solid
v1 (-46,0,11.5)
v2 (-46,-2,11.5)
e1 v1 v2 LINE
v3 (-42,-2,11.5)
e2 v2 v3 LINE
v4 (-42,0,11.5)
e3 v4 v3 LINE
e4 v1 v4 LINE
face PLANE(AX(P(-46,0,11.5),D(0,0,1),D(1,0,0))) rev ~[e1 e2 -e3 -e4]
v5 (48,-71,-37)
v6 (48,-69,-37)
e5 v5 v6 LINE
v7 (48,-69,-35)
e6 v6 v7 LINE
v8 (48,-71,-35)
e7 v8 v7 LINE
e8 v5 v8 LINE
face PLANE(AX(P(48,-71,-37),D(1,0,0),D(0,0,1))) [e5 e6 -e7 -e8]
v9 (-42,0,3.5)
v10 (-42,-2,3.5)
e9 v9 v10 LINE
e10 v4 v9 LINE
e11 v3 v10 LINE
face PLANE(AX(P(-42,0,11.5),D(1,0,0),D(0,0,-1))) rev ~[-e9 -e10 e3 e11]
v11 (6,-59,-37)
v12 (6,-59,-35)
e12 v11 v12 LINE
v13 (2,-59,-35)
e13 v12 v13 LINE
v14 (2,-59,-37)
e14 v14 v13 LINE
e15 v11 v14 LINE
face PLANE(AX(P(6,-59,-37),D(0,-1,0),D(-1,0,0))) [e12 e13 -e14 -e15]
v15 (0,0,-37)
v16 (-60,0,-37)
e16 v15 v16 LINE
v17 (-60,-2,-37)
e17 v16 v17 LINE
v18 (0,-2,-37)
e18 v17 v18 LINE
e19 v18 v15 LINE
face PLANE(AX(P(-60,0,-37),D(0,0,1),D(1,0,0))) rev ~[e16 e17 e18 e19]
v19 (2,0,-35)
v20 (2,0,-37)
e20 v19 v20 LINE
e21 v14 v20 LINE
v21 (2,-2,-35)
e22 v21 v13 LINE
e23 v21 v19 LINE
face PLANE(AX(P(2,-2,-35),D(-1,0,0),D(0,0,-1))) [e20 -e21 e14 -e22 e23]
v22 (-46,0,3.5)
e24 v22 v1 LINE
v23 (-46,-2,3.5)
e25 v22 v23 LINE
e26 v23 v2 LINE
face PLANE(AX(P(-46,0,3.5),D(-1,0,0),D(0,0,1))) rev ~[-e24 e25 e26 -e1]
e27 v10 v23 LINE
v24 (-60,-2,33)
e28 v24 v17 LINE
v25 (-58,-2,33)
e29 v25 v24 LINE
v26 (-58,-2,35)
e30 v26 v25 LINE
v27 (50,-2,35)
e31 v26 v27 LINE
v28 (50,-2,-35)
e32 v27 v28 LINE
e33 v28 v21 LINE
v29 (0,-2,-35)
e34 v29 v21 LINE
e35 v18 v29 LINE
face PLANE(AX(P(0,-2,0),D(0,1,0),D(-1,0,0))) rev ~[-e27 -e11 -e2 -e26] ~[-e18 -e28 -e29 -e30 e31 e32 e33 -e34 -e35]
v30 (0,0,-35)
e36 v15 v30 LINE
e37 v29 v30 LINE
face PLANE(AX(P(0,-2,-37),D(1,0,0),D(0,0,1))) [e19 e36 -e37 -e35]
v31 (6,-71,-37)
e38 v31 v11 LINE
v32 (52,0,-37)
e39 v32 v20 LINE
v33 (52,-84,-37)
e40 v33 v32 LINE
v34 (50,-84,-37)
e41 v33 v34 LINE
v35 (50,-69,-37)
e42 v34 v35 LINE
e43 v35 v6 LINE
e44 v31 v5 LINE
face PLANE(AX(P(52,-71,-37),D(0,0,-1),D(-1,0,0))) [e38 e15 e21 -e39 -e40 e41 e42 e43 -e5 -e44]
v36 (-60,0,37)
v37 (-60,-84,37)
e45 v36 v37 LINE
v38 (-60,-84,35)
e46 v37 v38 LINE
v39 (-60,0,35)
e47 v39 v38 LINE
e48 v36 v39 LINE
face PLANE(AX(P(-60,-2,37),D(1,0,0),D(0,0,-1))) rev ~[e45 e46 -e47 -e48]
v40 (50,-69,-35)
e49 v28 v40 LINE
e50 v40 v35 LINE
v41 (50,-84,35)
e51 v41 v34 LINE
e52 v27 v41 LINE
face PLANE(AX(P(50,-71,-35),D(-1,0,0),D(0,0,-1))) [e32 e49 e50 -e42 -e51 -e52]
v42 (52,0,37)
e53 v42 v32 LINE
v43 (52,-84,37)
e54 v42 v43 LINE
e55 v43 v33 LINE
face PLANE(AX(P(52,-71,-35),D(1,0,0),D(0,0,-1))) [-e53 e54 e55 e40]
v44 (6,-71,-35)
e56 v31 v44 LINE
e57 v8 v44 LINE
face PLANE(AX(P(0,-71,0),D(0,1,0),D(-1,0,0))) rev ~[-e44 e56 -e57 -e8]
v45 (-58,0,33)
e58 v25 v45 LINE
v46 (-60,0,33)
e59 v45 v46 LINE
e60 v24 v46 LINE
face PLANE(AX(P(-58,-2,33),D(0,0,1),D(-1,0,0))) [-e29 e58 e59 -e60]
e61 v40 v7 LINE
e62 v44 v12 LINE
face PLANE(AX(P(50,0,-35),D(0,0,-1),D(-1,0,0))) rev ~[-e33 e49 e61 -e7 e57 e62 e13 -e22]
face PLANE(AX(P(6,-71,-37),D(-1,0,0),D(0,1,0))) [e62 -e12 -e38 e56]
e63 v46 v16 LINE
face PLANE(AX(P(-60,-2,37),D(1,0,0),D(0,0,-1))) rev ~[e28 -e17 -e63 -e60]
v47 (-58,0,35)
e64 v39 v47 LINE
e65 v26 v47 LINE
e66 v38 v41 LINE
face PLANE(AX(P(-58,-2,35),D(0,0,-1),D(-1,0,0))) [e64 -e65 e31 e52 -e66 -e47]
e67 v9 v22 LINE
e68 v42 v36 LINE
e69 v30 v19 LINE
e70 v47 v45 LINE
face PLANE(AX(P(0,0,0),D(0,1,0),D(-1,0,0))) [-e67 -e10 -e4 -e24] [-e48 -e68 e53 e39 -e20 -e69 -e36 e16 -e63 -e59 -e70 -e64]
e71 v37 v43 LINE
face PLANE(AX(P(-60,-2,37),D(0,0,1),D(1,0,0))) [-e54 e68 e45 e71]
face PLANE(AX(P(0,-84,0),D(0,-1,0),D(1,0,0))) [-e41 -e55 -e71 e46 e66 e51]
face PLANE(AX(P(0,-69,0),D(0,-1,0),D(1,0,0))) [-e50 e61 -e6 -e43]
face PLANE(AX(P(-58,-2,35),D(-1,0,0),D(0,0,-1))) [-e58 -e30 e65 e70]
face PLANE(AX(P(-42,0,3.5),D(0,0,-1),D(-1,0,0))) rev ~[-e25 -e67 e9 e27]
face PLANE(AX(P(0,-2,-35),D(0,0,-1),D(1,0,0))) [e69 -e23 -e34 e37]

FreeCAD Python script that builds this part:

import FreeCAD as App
import Part
import Sketcher
Q = App.Units.Quantity


def add_polygon(sketch, points):
    """Adds a closed chain of lines whose ends are joined by coincident constraints."""
    first, n = sketch.GeometryCount, len(points)
    for a, b in zip(points, points[1:] + points[:1]):
        sketch.addGeometry(Part.LineSegment(App.Vector(*a, 0), App.Vector(*b, 0)), False)
    for i in range(n):
        sketch.addConstraint(Sketcher.Constraint("Coincident", first + i, 2, first + (i + 1) % n, 1))

doc = App.newDocument("Part")
body = doc.addObject("PartDesign::Body", "Body")

# Sketch on XZ plane
sketch1 = doc.addObject("Sketcher::SketchObject", "Sketch")
body.addObject(sketch1)
sketch1.AttachmentSupport = (doc.XZ_Plane, [""])
sketch1.MapMode = "FlatFace"
add_polygon(sketch1, [(-58, -35), (-58, 35), (50, 35), (50, -35)])  # lines 0-3
sketch1.addConstraint(Sketcher.Constraint("Vertical", 0))
sketch1.addConstraint(Sketcher.Constraint("Horizontal", 1))
sketch1.addConstraint(Sketcher.Constraint("Vertical", 2))
sketch1.addConstraint(Sketcher.Constraint("Horizontal", 3))
sketch1.addConstraint(Sketcher.Constraint("DistanceY", 0, 1, 0, 2, Q("70 mm")))
sketch1.addConstraint(Sketcher.Constraint("DistanceX", 0, 2, -1, 1, Q("58 mm")))
sketch1.addConstraint(Sketcher.Constraint("DistanceY", -1, 1, 0, 2, Q("35 mm")))
sketch1.addConstraint(Sketcher.Constraint("DistanceX", -1, 1, 1, 2, Q("50 mm")))
pad1 = doc.addObject("PartDesign::Pad", "Pad")
body.addObject(pad1)
pad1.Profile = sketch1
pad1.Length = 2

# Sketch on XZ plane
sketch2 = doc.addObject("Sketcher::SketchObject", "Sketch001")
body.addObject(sketch2)
sketch2.AttachmentSupport = (doc.XZ_Plane, [""])
sketch2.MapMode = "FlatFace"
add_polygon(sketch2, [(50, 37), (50, 35), (-58, 35), (-58, 37)])  # lines 0-3
sketch2.addConstraint(Sketcher.Constraint("Vertical", 0))
sketch2.addConstraint(Sketcher.Constraint("Horizontal", 1))
sketch2.addConstraint(Sketcher.Constraint("Vertical", 2))
sketch2.addConstraint(Sketcher.Constraint("Horizontal", 3))
sketch2.addConstraint(Sketcher.Constraint("DistanceY", 0, 2, 0, 1, Q("2 mm")))
sketch2.addConstraint(Sketcher.Constraint("DistanceX", 1, 2, 1, 1, Q("108 mm")))
sketch2.addConstraint(Sketcher.Constraint("DistanceX", -1, 1, 0, 2, Q("50 mm")))
sketch2.addConstraint(Sketcher.Constraint("DistanceY", -1, 1, 0, 2, Q("35 mm")))
pad2 = doc.addObject("PartDesign::Pad", "Pad001")
body.addObject(pad2)
pad2.Profile = sketch2
pad2.Length = 84

# Sketch on XZ plane
sketch3 = doc.addObject("Sketcher::SketchObject", "Sketch002")
body.addObject(sketch3)
sketch3.AttachmentSupport = (doc.XZ_Plane, [""])
sketch3.MapMode = "FlatFace"
add_polygon(sketch3, [(52, -35), (50, -35), (50, 37), (52, 37)])  # lines 0-3
sketch3.addConstraint(Sketcher.Constraint("Horizontal", 0))
sketch3.addConstraint(Sketcher.Constraint("Vertical", 1))
sketch3.addConstraint(Sketcher.Constraint("Horizontal", 2))
sketch3.addConstraint(Sketcher.Constraint("Vertical", 3))
sketch3.addConstraint(Sketcher.Constraint("DistanceX", 0, 2, 0, 1, Q("2 mm")))
sketch3.addConstraint(Sketcher.Constraint("DistanceY", 1, 1, 1, 2, Q("72 mm")))
sketch3.addConstraint(Sketcher.Constraint("DistanceX", -1, 1, 0, 2, Q("50 mm")))
sketch3.addConstraint(Sketcher.Constraint("DistanceY", 0, 2, -1, 1, Q("35 mm")))
pad3 = doc.addObject("PartDesign::Pad", "Pad002")
body.addObject(pad3)
pad3.Profile = sketch3
pad3.Length = 84

# Sketch on XZ plane
sketch4 = doc.addObject("Sketcher::SketchObject", "Sketch003")
body.addObject(sketch4)
sketch4.AttachmentSupport = (doc.XZ_Plane, [""])
sketch4.MapMode = "FlatFace"
add_polygon(sketch4, [(2, -35), (52, -35), (52, -37), (2, -37)])  # lines 0-3
sketch4.addConstraint(Sketcher.Constraint("Horizontal", 0))
sketch4.addConstraint(Sketcher.Constraint("Vertical", 1))
sketch4.addConstraint(Sketcher.Constraint("Horizontal", 2))
sketch4.addConstraint(Sketcher.Constraint("Vertical", 3))
sketch4.addConstraint(Sketcher.Constraint("DistanceX", 0, 1, 0, 2, Q("50 mm")))
sketch4.addConstraint(Sketcher.Constraint("DistanceY", 1, 2, 1, 1, Q("2 mm")))
sketch4.addConstraint(Sketcher.Constraint("DistanceX", -1, 1, 2, 2, Q("2 mm")))
sketch4.addConstraint(Sketcher.Constraint("DistanceY", 0, 2, -1, 1, Q("35 mm")))
pad4 = doc.addObject("PartDesign::Pad", "Pad003")
body.addObject(pad4)
pad4.Profile = sketch4
pad4.Length = 71

# Sketch on XY plane
sketch5 = doc.addObject("Sketcher::SketchObject", "Sketch004")
body.addObject(sketch5)
sketch5.AttachmentSupport = (doc.XY_Plane, [""])
sketch5.MapMode = "FlatFace"
sketch5.AttachmentOffset = App.Placement(App.Vector(0, 0, -37), App.Rotation())
add_polygon(sketch5, [(2, -71), (2, -59), (6, -59), (6, -71)])  # lines 0-3
sketch5.addConstraint(Sketcher.Constraint("Vertical", 0))
sketch5.addConstraint(Sketcher.Constraint("Horizontal", 1))
sketch5.addConstraint(Sketcher.Constraint("Vertical", 2))
sketch5.addConstraint(Sketcher.Constraint("Horizontal", 3))
sketch5.addConstraint(Sketcher.Constraint("DistanceX", 1, 1, 1, 2, Q("4 mm")))
sketch5.addConstraint(Sketcher.Constraint("DistanceY", 0, 1, 0, 2, Q("12 mm")))
sketch5.addConstraint(Sketcher.Constraint("DistanceX", -1, 1, 0, 2, Q("2 mm")))
sketch5.addConstraint(Sketcher.Constraint("DistanceY", 0, 2, -1, 1, Q("59 mm")))
pocket1 = doc.addObject("PartDesign::Pocket", "Pocket")
body.addObject(pocket1)
pocket1.Profile = sketch5
pocket1.Length = 3
pocket1.Reversed = True

# Sketch on XZ plane
sketch6 = doc.addObject("Sketcher::SketchObject", "Sketch005")
body.addObject(sketch6)
sketch6.AttachmentSupport = (doc.XZ_Plane, [""])
sketch6.MapMode = "FlatFace"
add_polygon(sketch6, [(-58, 37), (-58, -35), (2, -35), (2, -37), (-60, -37), (-60, 37)])  # lines 0-5
sketch6.addConstraint(Sketcher.Constraint("Vertical", 0))
sketch6.addConstraint(Sketcher.Constraint("Horizontal", 1))
sketch6.addConstraint(Sketcher.Constraint("Vertical", 2))
sketch6.addConstraint(Sketcher.Constraint("Horizontal", 3))
sketch6.addConstraint(Sketcher.Constraint("Vertical", 4))
sketch6.addConstraint(Sketcher.Constraint("Horizontal", 5))
sketch6.addConstraint(Sketcher.Constraint("Equal", 5, 2))
sketch6.addConstraint(Sketcher.Constraint("DistanceX", 5, 1, 5, 2, Q("2 mm")))
sketch6.addConstraint(Sketcher.Constraint("DistanceX", -1, 1, 1, 2, Q("2 mm")))
sketch6.addConstraint(Sketcher.Constraint("DistanceX", 1, 1, 1, 2, Q("60 mm")))
sketch6.addConstraint(Sketcher.Constraint("DistanceY", 0, 2, 0, 1, Q("72 mm")))
sketch6.addConstraint(Sketcher.Constraint("DistanceY", 0, 2, -1, 1, Q("35 mm")))
pad5 = doc.addObject("PartDesign::Pad", "Pad004")
body.addObject(pad5)
pad5.Profile = sketch6
pad5.Length = 2

# Sketch on XZ plane
sketch7 = doc.addObject("Sketcher::SketchObject", "Sketch006")
body.addObject(sketch7)
sketch7.AttachmentSupport = (doc.XZ_Plane, [""])
sketch7.MapMode = "FlatFace"
sketch7.AttachmentOffset = App.Placement(App.Vector(0, 0, 2), App.Rotation())
add_polygon(sketch7, [(-58, 37), (-60, 37), (-60, 35), (-58, 35)])  # lines 0-3
sketch7.addConstraint(Sketcher.Constraint("Horizontal", 0))
sketch7.addConstraint(Sketcher.Constraint("Vertical", 1))
sketch7.addConstraint(Sketcher.Constraint("Horizontal", 2))
sketch7.addConstraint(Sketcher.Constraint("Vertical", 3))
sketch7.addConstraint(Sketcher.Constraint("Equal", 2, 1))
sketch7.addConstraint(Sketcher.Constraint("DistanceX", 0, 2, 0, 1, Q("2 mm")))
sketch7.addConstraint(Sketcher.Constraint("DistanceX", 0, 2, -1, 1, Q("60 mm")))
sketch7.addConstraint(Sketcher.Constraint("DistanceY", -1, 1, 0, 2, Q("37 mm")))
pad6 = doc.addObject("PartDesign::Pad", "Pad005")
body.addObject(pad6)
pad6.Profile = sketch7
pad6.Length = 82

# Sketch on XZ plane
sketch8 = doc.addObject("Sketcher::SketchObject", "Sketch007")
body.addObject(sketch8)
sketch8.AttachmentSupport = (doc.XZ_Plane, [""])
sketch8.MapMode = "FlatFace"
sketch8.AttachmentOffset = App.Placement(App.Vector(0, 0, 2), App.Rotation())
add_polygon(sketch8, [(-58, 35), (-60, 35), (-60, 33), (-58, 33)])  # lines 0-3
sketch8.addConstraint(Sketcher.Constraint("Horizontal", 0))
sketch8.addConstraint(Sketcher.Constraint("Vertical", 1))
sketch8.addConstraint(Sketcher.Constraint("Horizontal", 2))
sketch8.addConstraint(Sketcher.Constraint("Vertical", 3))
sketch8.addConstraint(Sketcher.Constraint("Equal", 2, 1))
sketch8.addConstraint(Sketcher.Constraint("DistanceX", 0, 2, 0, 1, Q("2 mm")))
sketch8.addConstraint(Sketcher.Constraint("DistanceX", 0, 2, -1, 1, Q("60 mm")))
sketch8.addConstraint(Sketcher.Constraint("DistanceY", -1, 1, 0, 2, Q("35 mm")))
pocket2 = doc.addObject("PartDesign::Pocket", "Pocket001")
body.addObject(pocket2)
pocket2.Profile = sketch8
pocket2.Length = 2

# Sketch on XZ plane
sketch9 = doc.addObject("Sketcher::SketchObject", "Sketch008")
body.addObject(sketch9)
sketch9.AttachmentSupport = (doc.XZ_Plane, [""])
sketch9.MapMode = "FlatFace"
sketch9.AttachmentOffset = App.Placement(App.Vector(0, 0, 2), App.Rotation())
add_polygon(sketch9, [(2, -37), (2, -35), (0, -35), (0, -37)])  # lines 0-3
sketch9.addConstraint(Sketcher.Constraint("Vertical", 0))
sketch9.addConstraint(Sketcher.Constraint("Horizontal", 1))
sketch9.addConstraint(Sketcher.Constraint("Vertical", 2))
sketch9.addConstraint(Sketcher.Constraint("Horizontal", 3))
sketch9.addConstraint(Sketcher.Constraint("PointOnObject", 1, 2, -2))
sketch9.addConstraint(Sketcher.Constraint("Equal", 3, 0))
sketch9.addConstraint(Sketcher.Constraint("DistanceX", 1, 2, 1, 1, Q("2 mm")))
sketch9.addConstraint(Sketcher.Constraint("DistanceY", 0, 2, -1, 1, Q("35 mm")))
pocket3 = doc.addObject("PartDesign::Pocket", "Pocket002")
body.addObject(pocket3)
pocket3.Profile = sketch9
pocket3.Length = 2

# Sketch on XZ plane
sketch10 = doc.addObject("Sketcher::SketchObject", "Sketch009")
body.addObject(sketch10)
sketch10.AttachmentSupport = (doc.XZ_Plane, [""])
sketch10.MapMode = "FlatFace"
sketch10.AttachmentOffset = App.Placement(App.Vector(0, 0, 71), App.Rotation())
add_polygon(sketch10, [(52, -37), (52, -35), (50, -35), (50, -37)])  # lines 0-3
sketch10.addConstraint(Sketcher.Constraint("Vertical", 0))
sketch10.addConstraint(Sketcher.Constraint("Horizontal", 1))
sketch10.addConstraint(Sketcher.Constraint("Vertical", 2))
sketch10.addConstraint(Sketcher.Constraint("Horizontal", 3))
sketch10.addConstraint(Sketcher.Constraint("Equal", 3, 0))
sketch10.addConstraint(Sketcher.Constraint("DistanceX", 1, 2, 1, 1, Q("2 mm")))
sketch10.addConstraint(Sketcher.Constraint("DistanceX", -1, 1, 0, 2, Q("52 mm")))
sketch10.addConstraint(Sketcher.Constraint("DistanceY", 0, 2, -1, 1, Q("35 mm")))
pad7 = doc.addObject("PartDesign::Pad", "Pad006")
body.addObject(pad7)
pad7.Profile = sketch10
pad7.Length = 13

# Sketch on XZ plane
sketch11 = doc.addObject("Sketcher::SketchObject", "Sketch010")
body.addObject(sketch11)
sketch11.AttachmentSupport = (doc.XZ_Plane, [""])
sketch11.MapMode = "FlatFace"
sketch11.AttachmentOffset = App.Placement(App.Vector(0, 0, 71), App.Rotation())
add_polygon(sketch11, [(50, -37), (50, -35), (48, -35), (48, -37)])  # lines 0-3
sketch11.addConstraint(Sketcher.Constraint("Vertical", 0))
sketch11.addConstraint(Sketcher.Constraint("Horizontal", 1))
sketch11.addConstraint(Sketcher.Constraint("Vertical", 2))
sketch11.addConstraint(Sketcher.Constraint("Horizontal", 3))
sketch11.addConstraint(Sketcher.Constraint("Equal", 3, 0))
sketch11.addConstraint(Sketcher.Constraint("DistanceX", 1, 2, 1, 1, Q("2 mm")))
sketch11.addConstraint(Sketcher.Constraint("DistanceX", -1, 1, 0, 2, Q("50 mm")))
sketch11.addConstraint(Sketcher.Constraint("DistanceY", 0, 2, -1, 1, Q("35 mm")))
pocket4 = doc.addObject("PartDesign::Pocket", "Pocket003")
body.addObject(pocket4)
pocket4.Profile = sketch11
pocket4.Length = 2

# Sketch on XZ plane
sketch12 = doc.addObject("Sketcher::SketchObject", "Sketch011")
body.addObject(sketch12)
sketch12.AttachmentSupport = (doc.XZ_Plane, [""])
sketch12.MapMode = "FlatFace"
add_polygon(sketch12, [(-42, 11.5), (-42, 3.5), (-46, 3.5), (-46, 11.5)])  # lines 0-3
sketch12.addConstraint(Sketcher.Constraint("Vertical", 0))
sketch12.addConstraint(Sketcher.Constraint("Horizontal", 1))
sketch12.addConstraint(Sketcher.Constraint("Vertical", 2))
sketch12.addConstraint(Sketcher.Constraint("Horizontal", 3))
sketch12.addConstraint(Sketcher.Constraint("DistanceX", 1, 2, 1, 1, Q("4 mm")))
sketch12.addConstraint(Sketcher.Constraint("DistanceY", 0, 2, 0, 1, Q("8 mm")))
sketch12.addConstraint(Sketcher.Constraint("DistanceX", 0, 2, -1, 1, Q("42 mm")))
sketch12.addConstraint(Sketcher.Constraint("DistanceY", -1, 1, 0, 2, Q("3.5 mm")))
pocket5 = doc.addObject("PartDesign::Pocket", "Pocket004")
body.addObject(pocket5)
pocket5.Profile = sketch12
pocket5.Length = 10
pocket5.Reversed = True

doc.recompute()
